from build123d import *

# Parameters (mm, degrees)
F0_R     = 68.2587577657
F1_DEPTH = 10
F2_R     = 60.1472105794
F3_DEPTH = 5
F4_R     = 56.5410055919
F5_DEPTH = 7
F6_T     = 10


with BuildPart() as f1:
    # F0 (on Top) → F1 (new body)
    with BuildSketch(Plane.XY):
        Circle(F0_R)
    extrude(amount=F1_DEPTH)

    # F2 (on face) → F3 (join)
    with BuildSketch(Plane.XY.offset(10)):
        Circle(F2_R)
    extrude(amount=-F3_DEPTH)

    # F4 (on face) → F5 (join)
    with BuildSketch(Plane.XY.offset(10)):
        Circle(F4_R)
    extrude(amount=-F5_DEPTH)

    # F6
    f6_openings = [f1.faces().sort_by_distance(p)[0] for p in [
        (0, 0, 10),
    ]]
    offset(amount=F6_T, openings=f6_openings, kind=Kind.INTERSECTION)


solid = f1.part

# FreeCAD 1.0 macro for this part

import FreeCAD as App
import Part
import Sketcher
from FreeCAD import Vector


def faces_at(feature, points):
    """Names of the faces that lie closest to the given points."""
    faces = feature.Shape.Faces
    near = lambda p: min(range(len(faces)), key=lambda i: faces[i].distToShape(Part.Vertex(*p))[0])
    return sorted({f"Face{near(p) + 1}" for p in points})

doc = App.newDocument("Part")
body = doc.addObject("PartDesign::Body", "Body")

# Sketch on XY plane
sketch1 = body.newObject("Sketcher::SketchObject", "Sketch")
sketch1.AttachmentSupport = (doc.getObject("XY_Plane"), [""])
sketch1.MapMode = "FlatFace"
sketch1.addGeometry(Part.Circle(Vector(0, 0, 0), Vector(0, 0, 1), 68.258758), False)
sketch1.addConstraint([
    Sketcher.Constraint("Coincident", 0, 3, -1, 1),
    Sketcher.Constraint("Diameter", 0, 136.517516),
])
pad1 = body.newObject("PartDesign::Pad", "Pad")
pad1.Profile = sketch1
pad1.Length = 10

# Sketch on XY plane
sketch2 = body.newObject("Sketcher::SketchObject", "Sketch001")
sketch2.AttachmentSupport = (doc.getObject("XY_Plane"), [""])
sketch2.MapMode = "FlatFace"
sketch2.AttachmentOffset = App.Placement(Vector(0, 0, 10), App.Rotation())
sketch2.addGeometry(Part.Circle(Vector(0, 0, 0), Vector(0, 0, 1), 60.147211), False)
sketch2.addConstraint([
    Sketcher.Constraint("Coincident", 0, 3, -1, 1),
    Sketcher.Constraint("Diameter", 0, 120.294421),
])
pad2 = body.newObject("PartDesign::Pad", "Pad001")
pad2.Profile = sketch2
pad2.Length = 5
pad2.Reversed = True

# Sketch on XY plane
sketch3 = body.newObject("Sketcher::SketchObject", "Sketch002")
sketch3.AttachmentSupport = (doc.getObject("XY_Plane"), [""])
sketch3.MapMode = "FlatFace"
sketch3.AttachmentOffset = App.Placement(Vector(0, 0, 10), App.Rotation())
sketch3.addGeometry(Part.Circle(Vector(0, 0, 0), Vector(0, 0, 1), 56.541006), False)
sketch3.addConstraint([
    Sketcher.Constraint("Coincident", 0, 3, -1, 1),
    Sketcher.Constraint("Diameter", 0, 113.082011),
])
pad3 = body.newObject("PartDesign::Pad", "Pad002")
pad3.Profile = sketch3
pad3.Length = 7
pad3.Reversed = True
doc.recompute()

thickness = body.newObject("PartDesign::Thickness", "Thickness")
thickness.Base = (pad3, faces_at(pad3, [(0, 0, 10)]))
thickness.Value = 10
thickness.Reversed = False
thickness.Join = "Intersection"

doc.recompute()
